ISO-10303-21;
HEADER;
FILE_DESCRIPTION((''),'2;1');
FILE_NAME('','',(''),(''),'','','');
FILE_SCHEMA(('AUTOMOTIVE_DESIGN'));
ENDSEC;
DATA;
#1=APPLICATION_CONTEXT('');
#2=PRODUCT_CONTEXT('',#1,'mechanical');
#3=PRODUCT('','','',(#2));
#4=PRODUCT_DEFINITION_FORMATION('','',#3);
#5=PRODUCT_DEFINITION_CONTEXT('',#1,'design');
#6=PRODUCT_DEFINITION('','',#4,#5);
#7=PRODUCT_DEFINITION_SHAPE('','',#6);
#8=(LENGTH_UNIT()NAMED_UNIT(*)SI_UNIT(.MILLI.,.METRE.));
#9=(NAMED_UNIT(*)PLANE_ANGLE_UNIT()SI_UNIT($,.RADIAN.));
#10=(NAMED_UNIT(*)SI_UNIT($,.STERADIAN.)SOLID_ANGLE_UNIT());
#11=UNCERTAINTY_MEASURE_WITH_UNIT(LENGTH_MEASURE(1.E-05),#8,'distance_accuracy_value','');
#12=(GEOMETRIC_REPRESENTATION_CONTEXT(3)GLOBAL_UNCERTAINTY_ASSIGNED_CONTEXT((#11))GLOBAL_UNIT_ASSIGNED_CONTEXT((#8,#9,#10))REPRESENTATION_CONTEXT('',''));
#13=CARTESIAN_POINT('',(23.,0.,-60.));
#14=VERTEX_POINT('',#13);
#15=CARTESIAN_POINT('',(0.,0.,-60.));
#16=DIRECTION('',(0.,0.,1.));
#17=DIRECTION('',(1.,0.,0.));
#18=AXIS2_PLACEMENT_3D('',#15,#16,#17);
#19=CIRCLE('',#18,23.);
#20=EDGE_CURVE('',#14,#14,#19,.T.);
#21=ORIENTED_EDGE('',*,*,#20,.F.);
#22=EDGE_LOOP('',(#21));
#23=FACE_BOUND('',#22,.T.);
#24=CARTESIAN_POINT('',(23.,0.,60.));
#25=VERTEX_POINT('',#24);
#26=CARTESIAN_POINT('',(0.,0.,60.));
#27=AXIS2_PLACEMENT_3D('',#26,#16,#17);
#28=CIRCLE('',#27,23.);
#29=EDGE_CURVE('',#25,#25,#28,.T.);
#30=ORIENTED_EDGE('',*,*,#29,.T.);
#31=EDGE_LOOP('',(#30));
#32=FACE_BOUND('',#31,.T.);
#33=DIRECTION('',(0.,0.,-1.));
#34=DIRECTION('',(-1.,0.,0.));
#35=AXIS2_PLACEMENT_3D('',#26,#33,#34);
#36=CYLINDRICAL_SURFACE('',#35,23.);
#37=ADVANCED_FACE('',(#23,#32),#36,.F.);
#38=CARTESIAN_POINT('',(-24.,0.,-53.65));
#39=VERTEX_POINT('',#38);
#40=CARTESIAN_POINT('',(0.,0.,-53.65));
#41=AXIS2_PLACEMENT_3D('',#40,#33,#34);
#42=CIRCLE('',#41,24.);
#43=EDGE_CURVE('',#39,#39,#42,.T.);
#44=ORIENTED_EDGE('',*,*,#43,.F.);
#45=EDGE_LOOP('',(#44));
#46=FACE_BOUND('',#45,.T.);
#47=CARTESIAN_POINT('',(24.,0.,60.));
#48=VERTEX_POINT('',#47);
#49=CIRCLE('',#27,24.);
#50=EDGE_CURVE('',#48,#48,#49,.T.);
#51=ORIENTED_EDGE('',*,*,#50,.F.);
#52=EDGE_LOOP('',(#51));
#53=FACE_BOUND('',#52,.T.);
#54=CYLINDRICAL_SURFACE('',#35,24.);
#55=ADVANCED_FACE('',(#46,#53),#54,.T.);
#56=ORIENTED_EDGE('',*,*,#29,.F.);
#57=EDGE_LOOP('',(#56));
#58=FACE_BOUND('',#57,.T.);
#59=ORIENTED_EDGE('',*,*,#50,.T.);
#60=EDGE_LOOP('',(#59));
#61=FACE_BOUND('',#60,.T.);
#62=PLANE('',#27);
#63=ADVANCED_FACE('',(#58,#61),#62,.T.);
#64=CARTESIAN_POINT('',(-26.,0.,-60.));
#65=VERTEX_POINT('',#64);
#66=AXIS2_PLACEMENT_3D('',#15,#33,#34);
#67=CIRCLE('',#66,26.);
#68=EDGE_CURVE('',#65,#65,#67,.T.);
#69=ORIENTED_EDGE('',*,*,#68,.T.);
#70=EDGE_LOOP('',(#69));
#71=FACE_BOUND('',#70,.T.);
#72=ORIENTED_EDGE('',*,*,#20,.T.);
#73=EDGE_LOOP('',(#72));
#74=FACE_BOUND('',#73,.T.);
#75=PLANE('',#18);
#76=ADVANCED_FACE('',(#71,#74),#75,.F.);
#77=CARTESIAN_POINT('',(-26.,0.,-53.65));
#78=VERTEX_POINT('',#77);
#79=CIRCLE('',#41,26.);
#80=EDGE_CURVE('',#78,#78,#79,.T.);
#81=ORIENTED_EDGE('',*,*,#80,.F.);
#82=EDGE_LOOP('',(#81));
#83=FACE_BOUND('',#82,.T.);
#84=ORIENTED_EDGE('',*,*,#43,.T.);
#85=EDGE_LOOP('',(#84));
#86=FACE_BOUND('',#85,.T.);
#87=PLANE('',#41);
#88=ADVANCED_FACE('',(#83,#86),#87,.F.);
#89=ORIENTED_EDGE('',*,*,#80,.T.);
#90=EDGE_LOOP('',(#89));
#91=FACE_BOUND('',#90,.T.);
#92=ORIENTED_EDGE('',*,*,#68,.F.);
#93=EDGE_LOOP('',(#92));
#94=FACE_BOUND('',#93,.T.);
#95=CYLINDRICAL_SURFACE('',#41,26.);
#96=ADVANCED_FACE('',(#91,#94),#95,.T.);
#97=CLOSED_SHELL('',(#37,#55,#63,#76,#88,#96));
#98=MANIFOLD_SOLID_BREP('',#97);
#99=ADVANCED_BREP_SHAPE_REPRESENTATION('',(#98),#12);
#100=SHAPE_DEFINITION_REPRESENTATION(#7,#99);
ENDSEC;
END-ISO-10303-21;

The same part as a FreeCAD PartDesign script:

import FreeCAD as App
import Part
import Sketcher

V = App.Vector

doc = App.newDocument("Part")
body = doc.addObject("PartDesign::Body", "Body")

sketch1 = body.newObject("Sketcher::SketchObject", "Sketch")
sketch1.AttachmentSupport = (doc.getObject("XY_Plane"), [""])
sketch1.MapMode = "FlatFace"
sketch1.addGeometry(Part.Circle(V(0, 0, 0), V(0, 0, 1), 24), False)
sketch1.addGeometry(Part.Circle(V(0, 0, 0), V(0, 0, 1), 23), False)
sketch1.addConstraint(Sketcher.Constraint("Coincident", 0, 3, -1, 1))
sketch1.addConstraint(Sketcher.Constraint("Coincident", 1, 3, -1, 1))
sketch1.addConstraint(Sketcher.Constraint("Diameter", 0, 48.0))
sketch1.addConstraint(Sketcher.Constraint("Diameter", 1, 46.0))
pad1 = body.newObject("PartDesign::Pad", "Pad")
pad1.Profile = sketch1
pad1.Length = 120
pad1.Midplane = True

sketch2 = body.newObject("Sketcher::SketchObject", "Sketch001")
sketch2.AttachmentSupport = (doc.getObject("XY_Plane"), [""])
sketch2.MapMode = "FlatFace"
sketch2.AttachmentOffset = App.Placement(V(0, 0, -53.65), App.Rotation())
sketch2.addGeometry(Part.Circle(V(0, 0, 0), V(0, 0, 1), 26), False)
sketch2.addGeometry(Part.Circle(V(0, 0, 0), V(0, 0, 1), 24), False)
sketch2.addConstraint(Sketcher.Constraint("Coincident", 0, 3, -1, 1))
sketch2.addConstraint(Sketcher.Constraint("Coincident", 1, 3, -1, 1))
sketch2.addConstraint(Sketcher.Constraint("Diameter", 0, 52.0))
sketch2.addConstraint(Sketcher.Constraint("Diameter", 1, 48.0))
pad2 = body.newObject("PartDesign::Pad", "Pad001")
pad2.Profile = sketch2
pad2.Length = 6.35
pad2.Reversed = True

doc.recompute()
